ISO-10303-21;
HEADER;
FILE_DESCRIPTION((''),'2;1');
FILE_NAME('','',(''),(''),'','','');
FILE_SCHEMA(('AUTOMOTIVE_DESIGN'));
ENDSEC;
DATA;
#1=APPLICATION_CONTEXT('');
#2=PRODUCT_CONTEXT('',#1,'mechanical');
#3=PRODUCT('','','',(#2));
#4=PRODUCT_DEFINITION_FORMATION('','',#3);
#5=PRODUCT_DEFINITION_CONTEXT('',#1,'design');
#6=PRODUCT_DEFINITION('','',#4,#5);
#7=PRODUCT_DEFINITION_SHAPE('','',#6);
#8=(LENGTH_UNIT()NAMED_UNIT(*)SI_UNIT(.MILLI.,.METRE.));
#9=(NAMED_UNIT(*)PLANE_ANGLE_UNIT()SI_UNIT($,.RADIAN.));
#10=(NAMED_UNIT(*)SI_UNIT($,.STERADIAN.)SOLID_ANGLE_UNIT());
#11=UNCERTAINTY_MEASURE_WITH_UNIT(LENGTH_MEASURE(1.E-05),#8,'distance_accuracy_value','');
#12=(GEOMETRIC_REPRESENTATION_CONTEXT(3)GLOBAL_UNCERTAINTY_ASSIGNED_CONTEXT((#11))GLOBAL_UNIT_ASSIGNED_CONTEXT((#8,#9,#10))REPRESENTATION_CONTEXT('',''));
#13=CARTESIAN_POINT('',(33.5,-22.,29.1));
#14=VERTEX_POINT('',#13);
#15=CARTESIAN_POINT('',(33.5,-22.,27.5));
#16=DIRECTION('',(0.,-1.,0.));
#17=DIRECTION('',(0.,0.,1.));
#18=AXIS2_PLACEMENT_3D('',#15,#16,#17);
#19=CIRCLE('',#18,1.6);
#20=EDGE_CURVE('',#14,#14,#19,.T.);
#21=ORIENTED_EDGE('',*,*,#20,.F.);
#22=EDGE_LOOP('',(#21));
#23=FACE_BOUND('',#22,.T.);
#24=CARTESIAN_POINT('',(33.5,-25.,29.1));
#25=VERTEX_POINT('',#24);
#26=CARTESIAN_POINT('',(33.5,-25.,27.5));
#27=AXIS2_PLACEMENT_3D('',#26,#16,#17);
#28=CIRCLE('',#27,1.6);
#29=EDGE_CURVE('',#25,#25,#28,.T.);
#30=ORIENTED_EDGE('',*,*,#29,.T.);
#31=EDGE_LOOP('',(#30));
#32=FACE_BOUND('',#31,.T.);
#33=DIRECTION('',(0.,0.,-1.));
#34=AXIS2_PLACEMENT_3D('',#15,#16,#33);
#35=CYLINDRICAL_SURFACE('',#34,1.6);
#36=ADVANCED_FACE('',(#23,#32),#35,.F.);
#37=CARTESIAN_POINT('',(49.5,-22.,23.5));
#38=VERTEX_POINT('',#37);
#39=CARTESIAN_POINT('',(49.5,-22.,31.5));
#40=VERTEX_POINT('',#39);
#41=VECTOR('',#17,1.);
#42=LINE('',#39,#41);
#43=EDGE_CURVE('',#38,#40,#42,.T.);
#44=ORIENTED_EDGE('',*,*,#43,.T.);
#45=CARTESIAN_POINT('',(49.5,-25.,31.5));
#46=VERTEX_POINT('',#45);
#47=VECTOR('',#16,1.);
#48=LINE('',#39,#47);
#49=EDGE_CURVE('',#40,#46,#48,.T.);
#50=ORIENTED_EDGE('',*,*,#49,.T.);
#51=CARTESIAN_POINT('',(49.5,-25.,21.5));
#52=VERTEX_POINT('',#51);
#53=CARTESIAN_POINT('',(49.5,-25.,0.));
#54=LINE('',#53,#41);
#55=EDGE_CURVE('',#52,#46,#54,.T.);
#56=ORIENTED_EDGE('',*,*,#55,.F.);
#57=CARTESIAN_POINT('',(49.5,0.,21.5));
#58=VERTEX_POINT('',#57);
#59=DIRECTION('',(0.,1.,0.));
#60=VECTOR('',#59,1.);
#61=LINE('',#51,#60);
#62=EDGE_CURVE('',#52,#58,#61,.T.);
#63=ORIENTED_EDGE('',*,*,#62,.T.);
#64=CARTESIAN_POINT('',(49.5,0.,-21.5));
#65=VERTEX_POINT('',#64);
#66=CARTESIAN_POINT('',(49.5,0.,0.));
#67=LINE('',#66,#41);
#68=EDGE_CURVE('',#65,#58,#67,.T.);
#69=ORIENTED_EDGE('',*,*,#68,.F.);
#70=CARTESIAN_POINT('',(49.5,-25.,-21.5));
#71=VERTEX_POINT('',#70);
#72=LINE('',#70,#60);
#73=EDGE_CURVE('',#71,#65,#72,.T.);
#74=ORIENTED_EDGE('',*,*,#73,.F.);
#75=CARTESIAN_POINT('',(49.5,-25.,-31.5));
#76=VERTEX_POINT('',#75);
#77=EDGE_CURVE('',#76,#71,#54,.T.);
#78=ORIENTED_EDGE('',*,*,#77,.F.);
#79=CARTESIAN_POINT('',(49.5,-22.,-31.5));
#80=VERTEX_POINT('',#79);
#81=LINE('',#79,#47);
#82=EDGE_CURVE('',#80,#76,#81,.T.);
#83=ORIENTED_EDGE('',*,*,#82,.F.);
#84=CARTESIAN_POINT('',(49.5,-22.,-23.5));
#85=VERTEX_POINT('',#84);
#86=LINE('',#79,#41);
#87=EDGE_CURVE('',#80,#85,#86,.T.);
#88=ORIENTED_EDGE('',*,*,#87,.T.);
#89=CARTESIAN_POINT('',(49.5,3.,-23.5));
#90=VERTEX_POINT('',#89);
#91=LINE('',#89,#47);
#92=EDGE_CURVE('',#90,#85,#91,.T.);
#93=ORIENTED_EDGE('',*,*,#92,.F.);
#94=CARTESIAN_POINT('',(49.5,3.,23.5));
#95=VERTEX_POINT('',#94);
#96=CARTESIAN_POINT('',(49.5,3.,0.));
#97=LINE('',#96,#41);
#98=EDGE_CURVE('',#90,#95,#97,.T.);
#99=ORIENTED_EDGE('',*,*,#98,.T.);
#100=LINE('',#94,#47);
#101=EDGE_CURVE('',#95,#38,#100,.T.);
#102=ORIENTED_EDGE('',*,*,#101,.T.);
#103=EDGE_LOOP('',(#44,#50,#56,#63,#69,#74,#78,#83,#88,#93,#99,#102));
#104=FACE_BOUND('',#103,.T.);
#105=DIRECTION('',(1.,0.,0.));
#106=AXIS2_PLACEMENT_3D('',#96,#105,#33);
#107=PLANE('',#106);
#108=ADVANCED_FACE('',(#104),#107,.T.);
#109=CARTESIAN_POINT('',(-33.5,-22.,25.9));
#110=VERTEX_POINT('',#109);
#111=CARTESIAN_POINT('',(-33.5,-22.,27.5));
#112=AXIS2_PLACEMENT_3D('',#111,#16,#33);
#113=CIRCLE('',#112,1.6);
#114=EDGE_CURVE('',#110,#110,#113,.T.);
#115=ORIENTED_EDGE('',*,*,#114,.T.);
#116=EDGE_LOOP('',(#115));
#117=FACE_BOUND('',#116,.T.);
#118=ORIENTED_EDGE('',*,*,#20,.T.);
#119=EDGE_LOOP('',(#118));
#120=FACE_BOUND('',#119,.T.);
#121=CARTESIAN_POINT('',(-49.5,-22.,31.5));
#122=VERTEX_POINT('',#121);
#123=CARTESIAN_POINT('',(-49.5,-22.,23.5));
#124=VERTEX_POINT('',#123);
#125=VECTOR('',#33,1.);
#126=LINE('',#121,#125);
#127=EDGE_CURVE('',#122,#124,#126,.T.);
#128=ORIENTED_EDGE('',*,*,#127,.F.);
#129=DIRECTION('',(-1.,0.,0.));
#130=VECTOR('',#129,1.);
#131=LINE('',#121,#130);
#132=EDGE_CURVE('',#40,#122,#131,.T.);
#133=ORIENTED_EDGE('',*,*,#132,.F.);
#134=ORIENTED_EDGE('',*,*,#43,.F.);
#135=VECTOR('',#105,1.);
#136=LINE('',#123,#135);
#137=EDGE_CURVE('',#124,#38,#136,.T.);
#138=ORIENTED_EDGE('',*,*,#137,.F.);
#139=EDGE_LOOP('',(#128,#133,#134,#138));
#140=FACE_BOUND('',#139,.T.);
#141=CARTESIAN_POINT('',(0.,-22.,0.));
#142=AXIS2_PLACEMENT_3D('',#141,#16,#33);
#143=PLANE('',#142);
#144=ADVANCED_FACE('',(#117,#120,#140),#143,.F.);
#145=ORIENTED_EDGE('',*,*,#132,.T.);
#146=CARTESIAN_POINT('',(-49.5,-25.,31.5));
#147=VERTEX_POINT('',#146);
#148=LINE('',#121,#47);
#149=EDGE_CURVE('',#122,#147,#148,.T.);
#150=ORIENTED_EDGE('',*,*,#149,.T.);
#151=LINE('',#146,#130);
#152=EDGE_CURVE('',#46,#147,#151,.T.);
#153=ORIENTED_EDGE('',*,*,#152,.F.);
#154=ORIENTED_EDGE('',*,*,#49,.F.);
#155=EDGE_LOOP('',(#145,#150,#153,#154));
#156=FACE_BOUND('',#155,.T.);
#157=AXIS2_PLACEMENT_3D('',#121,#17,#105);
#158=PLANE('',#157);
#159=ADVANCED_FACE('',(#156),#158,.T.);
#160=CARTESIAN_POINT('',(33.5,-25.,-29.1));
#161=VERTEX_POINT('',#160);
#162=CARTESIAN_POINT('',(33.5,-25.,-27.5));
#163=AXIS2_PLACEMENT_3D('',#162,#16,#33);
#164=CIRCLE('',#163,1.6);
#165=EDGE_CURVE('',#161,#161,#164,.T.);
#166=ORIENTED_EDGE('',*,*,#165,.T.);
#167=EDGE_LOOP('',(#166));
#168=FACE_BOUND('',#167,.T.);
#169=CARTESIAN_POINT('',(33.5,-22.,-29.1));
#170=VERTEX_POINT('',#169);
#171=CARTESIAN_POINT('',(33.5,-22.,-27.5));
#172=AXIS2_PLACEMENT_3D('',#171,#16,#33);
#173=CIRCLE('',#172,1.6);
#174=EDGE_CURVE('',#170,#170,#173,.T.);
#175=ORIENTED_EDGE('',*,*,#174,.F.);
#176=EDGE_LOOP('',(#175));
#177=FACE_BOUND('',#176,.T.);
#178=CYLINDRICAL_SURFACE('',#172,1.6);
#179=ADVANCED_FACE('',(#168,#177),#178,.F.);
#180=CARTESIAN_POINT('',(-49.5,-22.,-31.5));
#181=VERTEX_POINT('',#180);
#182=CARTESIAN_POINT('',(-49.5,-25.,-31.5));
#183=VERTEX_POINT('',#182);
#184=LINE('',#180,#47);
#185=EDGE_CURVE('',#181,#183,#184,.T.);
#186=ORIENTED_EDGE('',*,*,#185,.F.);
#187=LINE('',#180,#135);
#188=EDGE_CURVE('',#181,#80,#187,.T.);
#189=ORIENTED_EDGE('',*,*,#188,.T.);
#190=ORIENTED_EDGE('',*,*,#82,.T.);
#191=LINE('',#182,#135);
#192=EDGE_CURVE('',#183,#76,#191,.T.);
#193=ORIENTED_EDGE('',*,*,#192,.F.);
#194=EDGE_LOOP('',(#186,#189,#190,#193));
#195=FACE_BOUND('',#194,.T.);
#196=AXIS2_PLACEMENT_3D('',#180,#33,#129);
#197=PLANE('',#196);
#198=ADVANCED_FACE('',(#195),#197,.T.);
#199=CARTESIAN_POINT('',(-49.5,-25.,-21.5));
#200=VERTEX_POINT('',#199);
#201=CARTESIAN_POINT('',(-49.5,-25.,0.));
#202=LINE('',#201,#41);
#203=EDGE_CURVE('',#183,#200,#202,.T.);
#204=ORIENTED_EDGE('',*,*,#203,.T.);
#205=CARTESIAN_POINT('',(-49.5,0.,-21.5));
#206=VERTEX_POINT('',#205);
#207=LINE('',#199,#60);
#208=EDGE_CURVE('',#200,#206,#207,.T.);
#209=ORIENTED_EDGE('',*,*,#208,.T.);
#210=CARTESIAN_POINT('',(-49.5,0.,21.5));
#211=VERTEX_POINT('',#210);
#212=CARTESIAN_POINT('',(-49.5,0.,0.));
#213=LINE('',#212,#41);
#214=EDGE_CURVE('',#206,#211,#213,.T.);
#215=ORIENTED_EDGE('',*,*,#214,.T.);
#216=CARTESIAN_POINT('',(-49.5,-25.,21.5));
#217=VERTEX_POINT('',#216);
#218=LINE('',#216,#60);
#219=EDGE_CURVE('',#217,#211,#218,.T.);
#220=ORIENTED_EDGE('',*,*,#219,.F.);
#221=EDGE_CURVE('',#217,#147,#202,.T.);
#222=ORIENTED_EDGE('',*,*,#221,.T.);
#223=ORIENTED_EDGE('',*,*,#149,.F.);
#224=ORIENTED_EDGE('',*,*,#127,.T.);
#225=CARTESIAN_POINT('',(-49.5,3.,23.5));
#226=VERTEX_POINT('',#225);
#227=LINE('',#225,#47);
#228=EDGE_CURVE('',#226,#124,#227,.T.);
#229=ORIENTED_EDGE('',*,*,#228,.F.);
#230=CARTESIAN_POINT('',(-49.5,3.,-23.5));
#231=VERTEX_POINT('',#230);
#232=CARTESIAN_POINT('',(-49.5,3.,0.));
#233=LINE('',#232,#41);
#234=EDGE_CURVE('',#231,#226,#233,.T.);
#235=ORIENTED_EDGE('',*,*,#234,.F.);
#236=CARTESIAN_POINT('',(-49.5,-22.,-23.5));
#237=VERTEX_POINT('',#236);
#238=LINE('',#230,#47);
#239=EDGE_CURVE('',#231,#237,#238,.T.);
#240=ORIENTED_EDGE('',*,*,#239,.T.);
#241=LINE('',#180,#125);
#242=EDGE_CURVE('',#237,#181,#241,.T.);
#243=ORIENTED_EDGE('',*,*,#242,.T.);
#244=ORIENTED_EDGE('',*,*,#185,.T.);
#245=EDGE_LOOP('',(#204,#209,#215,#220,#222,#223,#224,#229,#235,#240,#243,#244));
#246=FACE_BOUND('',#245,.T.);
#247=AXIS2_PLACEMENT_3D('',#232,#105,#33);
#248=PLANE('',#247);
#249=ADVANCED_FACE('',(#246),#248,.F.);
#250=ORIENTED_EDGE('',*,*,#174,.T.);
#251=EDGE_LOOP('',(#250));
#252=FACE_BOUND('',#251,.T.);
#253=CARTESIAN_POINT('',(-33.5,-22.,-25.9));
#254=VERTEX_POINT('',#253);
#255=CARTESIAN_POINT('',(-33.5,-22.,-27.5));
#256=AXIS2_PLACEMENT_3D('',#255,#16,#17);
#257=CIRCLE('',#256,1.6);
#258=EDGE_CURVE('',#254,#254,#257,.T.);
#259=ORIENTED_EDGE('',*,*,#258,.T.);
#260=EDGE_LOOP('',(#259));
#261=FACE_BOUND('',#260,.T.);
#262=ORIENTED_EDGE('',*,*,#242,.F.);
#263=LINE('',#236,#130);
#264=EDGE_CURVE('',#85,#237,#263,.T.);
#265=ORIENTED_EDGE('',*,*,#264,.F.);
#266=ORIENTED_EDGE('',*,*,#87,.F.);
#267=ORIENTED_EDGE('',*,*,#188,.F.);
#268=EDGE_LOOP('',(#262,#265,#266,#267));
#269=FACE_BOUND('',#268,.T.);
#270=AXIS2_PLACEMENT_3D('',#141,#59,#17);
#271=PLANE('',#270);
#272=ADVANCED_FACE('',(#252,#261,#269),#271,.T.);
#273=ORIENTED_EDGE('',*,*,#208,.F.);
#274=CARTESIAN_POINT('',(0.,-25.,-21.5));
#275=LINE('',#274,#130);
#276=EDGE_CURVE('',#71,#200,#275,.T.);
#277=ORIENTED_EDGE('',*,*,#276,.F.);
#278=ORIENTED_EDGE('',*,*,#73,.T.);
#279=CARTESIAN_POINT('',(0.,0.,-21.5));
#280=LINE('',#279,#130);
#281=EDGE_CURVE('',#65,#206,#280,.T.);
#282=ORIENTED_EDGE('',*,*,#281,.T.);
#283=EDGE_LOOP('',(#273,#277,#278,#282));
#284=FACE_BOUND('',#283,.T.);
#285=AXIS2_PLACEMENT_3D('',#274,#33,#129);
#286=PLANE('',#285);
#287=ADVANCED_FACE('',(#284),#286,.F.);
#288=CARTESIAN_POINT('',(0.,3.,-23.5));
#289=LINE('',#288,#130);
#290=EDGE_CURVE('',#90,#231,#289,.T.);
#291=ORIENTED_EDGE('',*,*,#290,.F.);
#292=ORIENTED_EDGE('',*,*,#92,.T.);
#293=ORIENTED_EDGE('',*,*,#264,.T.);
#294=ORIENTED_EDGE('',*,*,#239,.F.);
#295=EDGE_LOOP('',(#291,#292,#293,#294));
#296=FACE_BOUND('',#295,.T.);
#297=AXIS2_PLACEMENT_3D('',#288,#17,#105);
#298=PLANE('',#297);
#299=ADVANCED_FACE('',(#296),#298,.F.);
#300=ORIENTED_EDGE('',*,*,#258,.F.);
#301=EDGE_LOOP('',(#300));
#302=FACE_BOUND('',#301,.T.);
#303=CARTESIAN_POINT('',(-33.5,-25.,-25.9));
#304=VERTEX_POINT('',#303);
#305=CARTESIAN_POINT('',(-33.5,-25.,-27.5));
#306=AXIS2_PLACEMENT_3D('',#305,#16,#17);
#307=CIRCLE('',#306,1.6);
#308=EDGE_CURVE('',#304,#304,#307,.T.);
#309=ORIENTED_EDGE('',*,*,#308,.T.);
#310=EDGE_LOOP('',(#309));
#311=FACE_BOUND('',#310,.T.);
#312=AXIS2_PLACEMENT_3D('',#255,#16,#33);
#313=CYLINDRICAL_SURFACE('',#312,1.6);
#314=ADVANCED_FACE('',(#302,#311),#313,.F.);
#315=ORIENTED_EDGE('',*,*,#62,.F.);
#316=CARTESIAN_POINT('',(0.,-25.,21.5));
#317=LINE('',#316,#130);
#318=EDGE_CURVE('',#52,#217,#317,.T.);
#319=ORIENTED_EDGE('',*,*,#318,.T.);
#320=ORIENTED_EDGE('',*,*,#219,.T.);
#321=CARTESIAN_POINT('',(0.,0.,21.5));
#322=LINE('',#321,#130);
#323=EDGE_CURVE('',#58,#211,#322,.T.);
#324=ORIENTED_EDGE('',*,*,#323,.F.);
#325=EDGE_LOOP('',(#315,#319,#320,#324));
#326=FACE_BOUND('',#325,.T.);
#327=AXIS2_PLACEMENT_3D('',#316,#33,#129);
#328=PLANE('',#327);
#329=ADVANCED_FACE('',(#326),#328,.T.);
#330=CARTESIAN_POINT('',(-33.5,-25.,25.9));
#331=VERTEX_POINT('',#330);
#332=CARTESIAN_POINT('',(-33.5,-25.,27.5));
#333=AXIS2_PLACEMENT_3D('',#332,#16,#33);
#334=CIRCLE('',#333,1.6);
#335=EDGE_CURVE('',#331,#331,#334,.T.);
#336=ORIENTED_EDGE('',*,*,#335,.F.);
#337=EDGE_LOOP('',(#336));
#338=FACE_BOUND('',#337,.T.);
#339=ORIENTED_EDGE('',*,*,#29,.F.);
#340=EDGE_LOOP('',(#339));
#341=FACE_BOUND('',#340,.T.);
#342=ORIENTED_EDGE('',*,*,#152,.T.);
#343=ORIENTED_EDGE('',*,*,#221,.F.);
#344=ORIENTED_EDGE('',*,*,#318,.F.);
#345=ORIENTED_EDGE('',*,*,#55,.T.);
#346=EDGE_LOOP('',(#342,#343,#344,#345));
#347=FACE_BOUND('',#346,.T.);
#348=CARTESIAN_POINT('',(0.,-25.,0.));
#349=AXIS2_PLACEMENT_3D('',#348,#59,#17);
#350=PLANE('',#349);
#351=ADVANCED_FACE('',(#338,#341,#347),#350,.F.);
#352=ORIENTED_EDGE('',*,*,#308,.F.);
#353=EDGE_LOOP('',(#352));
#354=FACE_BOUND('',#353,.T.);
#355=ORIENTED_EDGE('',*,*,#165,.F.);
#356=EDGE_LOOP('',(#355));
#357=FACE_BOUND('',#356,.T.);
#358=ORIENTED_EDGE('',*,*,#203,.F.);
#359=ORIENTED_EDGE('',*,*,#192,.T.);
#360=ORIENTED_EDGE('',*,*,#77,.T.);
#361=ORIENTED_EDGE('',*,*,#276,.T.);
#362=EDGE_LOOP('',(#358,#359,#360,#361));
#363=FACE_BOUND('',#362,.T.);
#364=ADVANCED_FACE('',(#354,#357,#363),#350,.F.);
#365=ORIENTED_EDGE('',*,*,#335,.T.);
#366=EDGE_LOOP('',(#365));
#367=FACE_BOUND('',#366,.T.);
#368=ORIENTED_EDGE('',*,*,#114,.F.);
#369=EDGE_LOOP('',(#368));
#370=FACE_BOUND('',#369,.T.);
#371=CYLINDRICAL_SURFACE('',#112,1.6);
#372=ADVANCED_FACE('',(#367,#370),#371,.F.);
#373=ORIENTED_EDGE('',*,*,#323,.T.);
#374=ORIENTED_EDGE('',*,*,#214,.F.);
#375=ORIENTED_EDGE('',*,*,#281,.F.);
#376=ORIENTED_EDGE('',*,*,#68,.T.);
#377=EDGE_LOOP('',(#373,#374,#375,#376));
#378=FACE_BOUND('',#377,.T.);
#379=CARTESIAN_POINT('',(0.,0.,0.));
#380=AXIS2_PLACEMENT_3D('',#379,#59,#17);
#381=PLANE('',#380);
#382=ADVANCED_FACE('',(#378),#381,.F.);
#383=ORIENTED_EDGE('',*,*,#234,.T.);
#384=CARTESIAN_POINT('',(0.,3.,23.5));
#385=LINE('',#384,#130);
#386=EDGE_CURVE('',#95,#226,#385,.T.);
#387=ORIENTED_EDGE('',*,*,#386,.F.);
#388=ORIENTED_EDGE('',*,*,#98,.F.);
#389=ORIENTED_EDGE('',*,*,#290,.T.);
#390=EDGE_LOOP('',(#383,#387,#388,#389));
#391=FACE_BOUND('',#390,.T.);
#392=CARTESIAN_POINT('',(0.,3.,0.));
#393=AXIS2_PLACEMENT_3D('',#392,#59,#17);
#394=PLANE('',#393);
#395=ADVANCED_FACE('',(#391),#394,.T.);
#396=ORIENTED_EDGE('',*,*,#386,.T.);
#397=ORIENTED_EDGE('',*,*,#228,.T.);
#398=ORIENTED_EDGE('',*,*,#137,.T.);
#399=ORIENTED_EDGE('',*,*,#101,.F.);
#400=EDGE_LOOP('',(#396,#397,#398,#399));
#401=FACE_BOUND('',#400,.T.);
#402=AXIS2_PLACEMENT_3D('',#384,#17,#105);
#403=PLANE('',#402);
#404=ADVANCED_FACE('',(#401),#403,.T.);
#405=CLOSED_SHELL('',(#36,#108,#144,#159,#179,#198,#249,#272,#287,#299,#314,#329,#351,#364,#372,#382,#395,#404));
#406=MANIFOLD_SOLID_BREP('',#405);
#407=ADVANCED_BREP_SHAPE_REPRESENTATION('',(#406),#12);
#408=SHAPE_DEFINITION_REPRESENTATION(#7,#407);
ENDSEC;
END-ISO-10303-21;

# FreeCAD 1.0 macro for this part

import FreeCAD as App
import Part
import Sketcher

doc = App.newDocument("Part")
body = doc.addObject("PartDesign::Body", "Body")

# Sketch on XZ plane
sketch1 = body.newObject("Sketcher::SketchObject", "Sketch")
sketch1.AttachmentSupport = (doc.getObject("XZ_Plane"), [""])
sketch1.MapMode = "FlatFace"
sketch1.addGeometry(Part.LineSegment(App.Vector(-50, 24, 0), App.Vector(50, 24, 0)), False)
sketch1.addGeometry(Part.LineSegment(App.Vector(50, 24, 0), App.Vector(50, -24, 0)), False)
sketch1.addGeometry(Part.LineSegment(App.Vector(50, -24, 0), App.Vector(-50, -24, 0)), False)
sketch1.addGeometry(Part.LineSegment(App.Vector(-50, -24, 0), App.Vector(-50, 24, 0)), False)
sketch1.addConstraint(Sketcher.Constraint("Coincident", 0, 2, 1, 1))
sketch1.addConstraint(Sketcher.Constraint("Coincident", 1, 2, 2, 1))
sketch1.addConstraint(Sketcher.Constraint("Coincident", 2, 2, 3, 1))
sketch1.addConstraint(Sketcher.Constraint("Coincident", 3, 2, 0, 1))
sketch1.addConstraint(Sketcher.Constraint("Horizontal", 0))
sketch1.addConstraint(Sketcher.Constraint("Vertical", 1))
sketch1.addConstraint(Sketcher.Constraint("Horizontal", 2))
sketch1.addConstraint(Sketcher.Constraint("Vertical", 3))
sketch1.addConstraint(Sketcher.Constraint("Symmetric", 0, 2, 2, 2, -1, 1))
sketch1.addConstraint(Sketcher.Constraint("DistanceX", 0, 1, 0, 2, 99.0))
sketch1.addConstraint(Sketcher.Constraint("DistanceY", 1, 2, 1, 1, 47.0))
pad1 = body.newObject("PartDesign::Pad", "Pad")
pad1.Profile = sketch1
pad1.Length = 3
pad1.Reversed = True

# Sketch on XZ plane
sketch2 = body.newObject("Sketcher::SketchObject", "Sketch001")
sketch2.AttachmentSupport = (doc.getObject("XZ_Plane"), [""])
sketch2.MapMode = "FlatFace"
sketch2.addGeometry(Part.LineSegment(App.Vector(-49.5, 21.5, 0), App.Vector(-49.5, 23.5, 0)), False)
sketch2.addGeometry(Part.LineSegment(App.Vector(-49.5, 23.5, 0), App.Vector(49.5, 23.5, 0)), False)
sketch2.addGeometry(Part.LineSegment(App.Vector(49.5, 23.5, 0), App.Vector(49.5, 21.5, 0)), False)
sketch2.addGeometry(Part.LineSegment(App.Vector(49.5, 21.5, 0), App.Vector(-49.5, 21.5, 0)), False)
sketch2.addGeometry(Part.LineSegment(App.Vector(-49.5, -23.5, 0), App.Vector(-49.5, -21.5, 0)), False)
sketch2.addGeometry(Part.LineSegment(App.Vector(-49.5, -21.5, 0), App.Vector(49.5, -21.5, 0)), False)
sketch2.addGeometry(Part.LineSegment(App.Vector(49.5, -21.5, 0), App.Vector(49.5, -23.5, 0)), False)
sketch2.addGeometry(Part.LineSegment(App.Vector(49.5, -23.5, 0), App.Vector(-49.5, -23.5, 0)), False)
sketch2.addConstraint(Sketcher.Constraint("Coincident", 0, 2, 1, 1))
sketch2.addConstraint(Sketcher.Constraint("Coincident", 1, 2, 2, 1))
sketch2.addConstraint(Sketcher.Constraint("Coincident", 2, 2, 3, 1))
sketch2.addConstraint(Sketcher.Constraint("Coincident", 3, 2, 0, 1))
sketch2.addConstraint(Sketcher.Constraint("Coincident", 4, 2, 5, 1))
sketch2.addConstraint(Sketcher.Constraint("Coincident", 5, 2, 6, 1))
sketch2.addConstraint(Sketcher.Constraint("Coincident", 6, 2, 7, 1))
sketch2.addConstraint(Sketcher.Constraint("Coincident", 7, 2, 4, 1))
sketch2.addConstraint(Sketcher.Constraint("Vertical", 0))
sketch2.addConstraint(Sketcher.Constraint("Horizontal", 1))
sketch2.addConstraint(Sketcher.Constraint("Vertical", 2))
sketch2.addConstraint(Sketcher.Constraint("Horizontal", 3))
sketch2.addConstraint(Sketcher.Constraint("Vertical", 4))
sketch2.addConstraint(Sketcher.Constraint("Horizontal", 5))
sketch2.addConstraint(Sketcher.Constraint("Vertical", 6))
sketch2.addConstraint(Sketcher.Constraint("Horizontal", 7))
sketch2.addConstraint(Sketcher.Constraint("Symmetric", 2, 2, 4, 2, -1, 1))
sketch2.addConstraint(Sketcher.Constraint("Symmetric", 0, 2, 6, 2, -1, 1))
sketch2.addConstraint(Sketcher.Constraint("Vertical", 3, 2, 4, 2))
sketch2.addConstraint(Sketcher.Constraint("DistanceX", 1, 1, 1, 2, 99.0))
sketch2.addConstraint(Sketcher.Constraint("DistanceY", 0, 1, 0, 2, 2.0))
sketch2.addConstraint(Sketcher.Constraint("DistanceY", 4, 2, 3, 2, 43.0))
pad2 = body.newObject("PartDesign::Pad", "Pad001")
pad2.Profile = sketch2
pad2.Length = 25

# Sketch on XZ plane
sketch3 = body.newObject("Sketcher::SketchObject", "Sketch002")
sketch3.AttachmentSupport = (doc.getObject("XZ_Plane"), [""])
sketch3.MapMode = "FlatFace"
sketch3.AttachmentOffset = App.Placement(App.Vector(0, 0, 25), App.Rotation())
sketch3.addGeometry(Part.LineSegment(App.Vector(-49.5, 31.5, 0), App.Vector(-49.5, 23.5, 0)), False)
sketch3.addGeometry(Part.LineSegment(App.Vector(-49.5, 23.5, 0), App.Vector(49.5, 23.5, 0)), False)
sketch3.addGeometry(Part.LineSegment(App.Vector(49.5, 23.5, 0), App.Vector(49.5, 31.5, 0)), False)
sketch3.addGeometry(Part.LineSegment(App.Vector(49.5, 31.5, 0), App.Vector(-49.5, 31.5, 0)), False)
sketch3.addGeometry(Part.Circle(App.Vector(-33.5, 27.5, 0), App.Vector(0, 0, 1), 1.6), False)
sketch3.addGeometry(Part.Circle(App.Vector(33.5, 27.5, 0), App.Vector(0, 0, 1), 1.6), False)
sketch3.addGeometry(Part.LineSegment(App.Vector(-49.5, -23.5, 0), App.Vector(-49.5, -31.5, 0)), False)
sketch3.addGeometry(Part.LineSegment(App.Vector(-49.5, -31.5, 0), App.Vector(49.5, -31.5, 0)), False)
sketch3.addGeometry(Part.LineSegment(App.Vector(49.5, -31.5, 0), App.Vector(49.5, -23.5, 0)), False)
sketch3.addGeometry(Part.LineSegment(App.Vector(49.5, -23.5, 0), App.Vector(-49.5, -23.5, 0)), False)
sketch3.addGeometry(Part.Circle(App.Vector(-33.5, -27.5, 0), App.Vector(0, 0, 1), 1.6), False)
sketch3.addGeometry(Part.Circle(App.Vector(33.5, -27.5, 0), App.Vector(0, 0, 1), 1.6), False)
sketch3.addConstraint(Sketcher.Constraint("Coincident", 0, 2, 1, 1))
sketch3.addConstraint(Sketcher.Constraint("Coincident", 1, 2, 2, 1))
sketch3.addConstraint(Sketcher.Constraint("Coincident", 2, 2, 3, 1))
sketch3.addConstraint(Sketcher.Constraint("Coincident", 3, 2, 0, 1))
sketch3.addConstraint(Sketcher.Constraint("Coincident", 6, 2, 7, 1))
sketch3.addConstraint(Sketcher.Constraint("Coincident", 7, 2, 8, 1))
sketch3.addConstraint(Sketcher.Constraint("Coincident", 8, 2, 9, 1))
sketch3.addConstraint(Sketcher.Constraint("Coincident", 9, 2, 6, 1))
sketch3.addConstraint(Sketcher.Constraint("Vertical", 0))
sketch3.addConstraint(Sketcher.Constraint("Horizontal", 1))
sketch3.addConstraint(Sketcher.Constraint("Vertical", 2))
sketch3.addConstraint(Sketcher.Constraint("Horizontal", 3))
sketch3.addConstraint(Sketcher.Constraint("Vertical", 6))
sketch3.addConstraint(Sketcher.Constraint("Horizontal", 7))
sketch3.addConstraint(Sketcher.Constraint("Vertical", 8))
sketch3.addConstraint(Sketcher.Constraint("Horizontal", 9))
sketch3.addConstraint(Sketcher.Constraint("Equal", 4, 5))
sketch3.addConstraint(Sketcher.Constraint("Equal", 5, 10))
sketch3.addConstraint(Sketcher.Constraint("Equal", 10, 11))
sketch3.addConstraint(Sketcher.Constraint("Symmetric", 5, 3, 10, 3, -1, 1))
sketch3.addConstraint(Sketcher.Constraint("Symmetric", 4, 3, 11, 3, -1, 1))
sketch3.addConstraint(Sketcher.Constraint("Symmetric", 2, 2, 6, 2, -1, 1))
sketch3.addConstraint(Sketcher.Constraint("Symmetric", 0, 2, 8, 2, -1, 1))
sketch3.addConstraint(Sketcher.Constraint("Symmetric", 4, 3, 5, 3, -2))
sketch3.addConstraint(Sketcher.Constraint("Vertical", 3, 2, 6, 2))
sketch3.addConstraint(Sketcher.Constraint("Diameter", 4, 3.2))
sketch3.addConstraint(Sketcher.Constraint("DistanceX", 1, 1, 1, 2, 99.0))
sketch3.addConstraint(Sketcher.Constraint("DistanceY", 0, 2, 0, 1, 8.0))
sketch3.addConstraint(Sketcher.Constraint("DistanceX", 4, 3, 5, 3, 67.0))
sketch3.addConstraint(Sketcher.Constraint("DistanceY", 10, 3, 4, 3, 55.0))
sketch3.addConstraint(Sketcher.Constraint("DistanceY", 0, 2, 4, 3, 4.0))
pad3 = body.newObject("PartDesign::Pad", "Pad002")
pad3.Profile = sketch3
pad3.Length = 3
pad3.Reversed = True

doc.recompute()
